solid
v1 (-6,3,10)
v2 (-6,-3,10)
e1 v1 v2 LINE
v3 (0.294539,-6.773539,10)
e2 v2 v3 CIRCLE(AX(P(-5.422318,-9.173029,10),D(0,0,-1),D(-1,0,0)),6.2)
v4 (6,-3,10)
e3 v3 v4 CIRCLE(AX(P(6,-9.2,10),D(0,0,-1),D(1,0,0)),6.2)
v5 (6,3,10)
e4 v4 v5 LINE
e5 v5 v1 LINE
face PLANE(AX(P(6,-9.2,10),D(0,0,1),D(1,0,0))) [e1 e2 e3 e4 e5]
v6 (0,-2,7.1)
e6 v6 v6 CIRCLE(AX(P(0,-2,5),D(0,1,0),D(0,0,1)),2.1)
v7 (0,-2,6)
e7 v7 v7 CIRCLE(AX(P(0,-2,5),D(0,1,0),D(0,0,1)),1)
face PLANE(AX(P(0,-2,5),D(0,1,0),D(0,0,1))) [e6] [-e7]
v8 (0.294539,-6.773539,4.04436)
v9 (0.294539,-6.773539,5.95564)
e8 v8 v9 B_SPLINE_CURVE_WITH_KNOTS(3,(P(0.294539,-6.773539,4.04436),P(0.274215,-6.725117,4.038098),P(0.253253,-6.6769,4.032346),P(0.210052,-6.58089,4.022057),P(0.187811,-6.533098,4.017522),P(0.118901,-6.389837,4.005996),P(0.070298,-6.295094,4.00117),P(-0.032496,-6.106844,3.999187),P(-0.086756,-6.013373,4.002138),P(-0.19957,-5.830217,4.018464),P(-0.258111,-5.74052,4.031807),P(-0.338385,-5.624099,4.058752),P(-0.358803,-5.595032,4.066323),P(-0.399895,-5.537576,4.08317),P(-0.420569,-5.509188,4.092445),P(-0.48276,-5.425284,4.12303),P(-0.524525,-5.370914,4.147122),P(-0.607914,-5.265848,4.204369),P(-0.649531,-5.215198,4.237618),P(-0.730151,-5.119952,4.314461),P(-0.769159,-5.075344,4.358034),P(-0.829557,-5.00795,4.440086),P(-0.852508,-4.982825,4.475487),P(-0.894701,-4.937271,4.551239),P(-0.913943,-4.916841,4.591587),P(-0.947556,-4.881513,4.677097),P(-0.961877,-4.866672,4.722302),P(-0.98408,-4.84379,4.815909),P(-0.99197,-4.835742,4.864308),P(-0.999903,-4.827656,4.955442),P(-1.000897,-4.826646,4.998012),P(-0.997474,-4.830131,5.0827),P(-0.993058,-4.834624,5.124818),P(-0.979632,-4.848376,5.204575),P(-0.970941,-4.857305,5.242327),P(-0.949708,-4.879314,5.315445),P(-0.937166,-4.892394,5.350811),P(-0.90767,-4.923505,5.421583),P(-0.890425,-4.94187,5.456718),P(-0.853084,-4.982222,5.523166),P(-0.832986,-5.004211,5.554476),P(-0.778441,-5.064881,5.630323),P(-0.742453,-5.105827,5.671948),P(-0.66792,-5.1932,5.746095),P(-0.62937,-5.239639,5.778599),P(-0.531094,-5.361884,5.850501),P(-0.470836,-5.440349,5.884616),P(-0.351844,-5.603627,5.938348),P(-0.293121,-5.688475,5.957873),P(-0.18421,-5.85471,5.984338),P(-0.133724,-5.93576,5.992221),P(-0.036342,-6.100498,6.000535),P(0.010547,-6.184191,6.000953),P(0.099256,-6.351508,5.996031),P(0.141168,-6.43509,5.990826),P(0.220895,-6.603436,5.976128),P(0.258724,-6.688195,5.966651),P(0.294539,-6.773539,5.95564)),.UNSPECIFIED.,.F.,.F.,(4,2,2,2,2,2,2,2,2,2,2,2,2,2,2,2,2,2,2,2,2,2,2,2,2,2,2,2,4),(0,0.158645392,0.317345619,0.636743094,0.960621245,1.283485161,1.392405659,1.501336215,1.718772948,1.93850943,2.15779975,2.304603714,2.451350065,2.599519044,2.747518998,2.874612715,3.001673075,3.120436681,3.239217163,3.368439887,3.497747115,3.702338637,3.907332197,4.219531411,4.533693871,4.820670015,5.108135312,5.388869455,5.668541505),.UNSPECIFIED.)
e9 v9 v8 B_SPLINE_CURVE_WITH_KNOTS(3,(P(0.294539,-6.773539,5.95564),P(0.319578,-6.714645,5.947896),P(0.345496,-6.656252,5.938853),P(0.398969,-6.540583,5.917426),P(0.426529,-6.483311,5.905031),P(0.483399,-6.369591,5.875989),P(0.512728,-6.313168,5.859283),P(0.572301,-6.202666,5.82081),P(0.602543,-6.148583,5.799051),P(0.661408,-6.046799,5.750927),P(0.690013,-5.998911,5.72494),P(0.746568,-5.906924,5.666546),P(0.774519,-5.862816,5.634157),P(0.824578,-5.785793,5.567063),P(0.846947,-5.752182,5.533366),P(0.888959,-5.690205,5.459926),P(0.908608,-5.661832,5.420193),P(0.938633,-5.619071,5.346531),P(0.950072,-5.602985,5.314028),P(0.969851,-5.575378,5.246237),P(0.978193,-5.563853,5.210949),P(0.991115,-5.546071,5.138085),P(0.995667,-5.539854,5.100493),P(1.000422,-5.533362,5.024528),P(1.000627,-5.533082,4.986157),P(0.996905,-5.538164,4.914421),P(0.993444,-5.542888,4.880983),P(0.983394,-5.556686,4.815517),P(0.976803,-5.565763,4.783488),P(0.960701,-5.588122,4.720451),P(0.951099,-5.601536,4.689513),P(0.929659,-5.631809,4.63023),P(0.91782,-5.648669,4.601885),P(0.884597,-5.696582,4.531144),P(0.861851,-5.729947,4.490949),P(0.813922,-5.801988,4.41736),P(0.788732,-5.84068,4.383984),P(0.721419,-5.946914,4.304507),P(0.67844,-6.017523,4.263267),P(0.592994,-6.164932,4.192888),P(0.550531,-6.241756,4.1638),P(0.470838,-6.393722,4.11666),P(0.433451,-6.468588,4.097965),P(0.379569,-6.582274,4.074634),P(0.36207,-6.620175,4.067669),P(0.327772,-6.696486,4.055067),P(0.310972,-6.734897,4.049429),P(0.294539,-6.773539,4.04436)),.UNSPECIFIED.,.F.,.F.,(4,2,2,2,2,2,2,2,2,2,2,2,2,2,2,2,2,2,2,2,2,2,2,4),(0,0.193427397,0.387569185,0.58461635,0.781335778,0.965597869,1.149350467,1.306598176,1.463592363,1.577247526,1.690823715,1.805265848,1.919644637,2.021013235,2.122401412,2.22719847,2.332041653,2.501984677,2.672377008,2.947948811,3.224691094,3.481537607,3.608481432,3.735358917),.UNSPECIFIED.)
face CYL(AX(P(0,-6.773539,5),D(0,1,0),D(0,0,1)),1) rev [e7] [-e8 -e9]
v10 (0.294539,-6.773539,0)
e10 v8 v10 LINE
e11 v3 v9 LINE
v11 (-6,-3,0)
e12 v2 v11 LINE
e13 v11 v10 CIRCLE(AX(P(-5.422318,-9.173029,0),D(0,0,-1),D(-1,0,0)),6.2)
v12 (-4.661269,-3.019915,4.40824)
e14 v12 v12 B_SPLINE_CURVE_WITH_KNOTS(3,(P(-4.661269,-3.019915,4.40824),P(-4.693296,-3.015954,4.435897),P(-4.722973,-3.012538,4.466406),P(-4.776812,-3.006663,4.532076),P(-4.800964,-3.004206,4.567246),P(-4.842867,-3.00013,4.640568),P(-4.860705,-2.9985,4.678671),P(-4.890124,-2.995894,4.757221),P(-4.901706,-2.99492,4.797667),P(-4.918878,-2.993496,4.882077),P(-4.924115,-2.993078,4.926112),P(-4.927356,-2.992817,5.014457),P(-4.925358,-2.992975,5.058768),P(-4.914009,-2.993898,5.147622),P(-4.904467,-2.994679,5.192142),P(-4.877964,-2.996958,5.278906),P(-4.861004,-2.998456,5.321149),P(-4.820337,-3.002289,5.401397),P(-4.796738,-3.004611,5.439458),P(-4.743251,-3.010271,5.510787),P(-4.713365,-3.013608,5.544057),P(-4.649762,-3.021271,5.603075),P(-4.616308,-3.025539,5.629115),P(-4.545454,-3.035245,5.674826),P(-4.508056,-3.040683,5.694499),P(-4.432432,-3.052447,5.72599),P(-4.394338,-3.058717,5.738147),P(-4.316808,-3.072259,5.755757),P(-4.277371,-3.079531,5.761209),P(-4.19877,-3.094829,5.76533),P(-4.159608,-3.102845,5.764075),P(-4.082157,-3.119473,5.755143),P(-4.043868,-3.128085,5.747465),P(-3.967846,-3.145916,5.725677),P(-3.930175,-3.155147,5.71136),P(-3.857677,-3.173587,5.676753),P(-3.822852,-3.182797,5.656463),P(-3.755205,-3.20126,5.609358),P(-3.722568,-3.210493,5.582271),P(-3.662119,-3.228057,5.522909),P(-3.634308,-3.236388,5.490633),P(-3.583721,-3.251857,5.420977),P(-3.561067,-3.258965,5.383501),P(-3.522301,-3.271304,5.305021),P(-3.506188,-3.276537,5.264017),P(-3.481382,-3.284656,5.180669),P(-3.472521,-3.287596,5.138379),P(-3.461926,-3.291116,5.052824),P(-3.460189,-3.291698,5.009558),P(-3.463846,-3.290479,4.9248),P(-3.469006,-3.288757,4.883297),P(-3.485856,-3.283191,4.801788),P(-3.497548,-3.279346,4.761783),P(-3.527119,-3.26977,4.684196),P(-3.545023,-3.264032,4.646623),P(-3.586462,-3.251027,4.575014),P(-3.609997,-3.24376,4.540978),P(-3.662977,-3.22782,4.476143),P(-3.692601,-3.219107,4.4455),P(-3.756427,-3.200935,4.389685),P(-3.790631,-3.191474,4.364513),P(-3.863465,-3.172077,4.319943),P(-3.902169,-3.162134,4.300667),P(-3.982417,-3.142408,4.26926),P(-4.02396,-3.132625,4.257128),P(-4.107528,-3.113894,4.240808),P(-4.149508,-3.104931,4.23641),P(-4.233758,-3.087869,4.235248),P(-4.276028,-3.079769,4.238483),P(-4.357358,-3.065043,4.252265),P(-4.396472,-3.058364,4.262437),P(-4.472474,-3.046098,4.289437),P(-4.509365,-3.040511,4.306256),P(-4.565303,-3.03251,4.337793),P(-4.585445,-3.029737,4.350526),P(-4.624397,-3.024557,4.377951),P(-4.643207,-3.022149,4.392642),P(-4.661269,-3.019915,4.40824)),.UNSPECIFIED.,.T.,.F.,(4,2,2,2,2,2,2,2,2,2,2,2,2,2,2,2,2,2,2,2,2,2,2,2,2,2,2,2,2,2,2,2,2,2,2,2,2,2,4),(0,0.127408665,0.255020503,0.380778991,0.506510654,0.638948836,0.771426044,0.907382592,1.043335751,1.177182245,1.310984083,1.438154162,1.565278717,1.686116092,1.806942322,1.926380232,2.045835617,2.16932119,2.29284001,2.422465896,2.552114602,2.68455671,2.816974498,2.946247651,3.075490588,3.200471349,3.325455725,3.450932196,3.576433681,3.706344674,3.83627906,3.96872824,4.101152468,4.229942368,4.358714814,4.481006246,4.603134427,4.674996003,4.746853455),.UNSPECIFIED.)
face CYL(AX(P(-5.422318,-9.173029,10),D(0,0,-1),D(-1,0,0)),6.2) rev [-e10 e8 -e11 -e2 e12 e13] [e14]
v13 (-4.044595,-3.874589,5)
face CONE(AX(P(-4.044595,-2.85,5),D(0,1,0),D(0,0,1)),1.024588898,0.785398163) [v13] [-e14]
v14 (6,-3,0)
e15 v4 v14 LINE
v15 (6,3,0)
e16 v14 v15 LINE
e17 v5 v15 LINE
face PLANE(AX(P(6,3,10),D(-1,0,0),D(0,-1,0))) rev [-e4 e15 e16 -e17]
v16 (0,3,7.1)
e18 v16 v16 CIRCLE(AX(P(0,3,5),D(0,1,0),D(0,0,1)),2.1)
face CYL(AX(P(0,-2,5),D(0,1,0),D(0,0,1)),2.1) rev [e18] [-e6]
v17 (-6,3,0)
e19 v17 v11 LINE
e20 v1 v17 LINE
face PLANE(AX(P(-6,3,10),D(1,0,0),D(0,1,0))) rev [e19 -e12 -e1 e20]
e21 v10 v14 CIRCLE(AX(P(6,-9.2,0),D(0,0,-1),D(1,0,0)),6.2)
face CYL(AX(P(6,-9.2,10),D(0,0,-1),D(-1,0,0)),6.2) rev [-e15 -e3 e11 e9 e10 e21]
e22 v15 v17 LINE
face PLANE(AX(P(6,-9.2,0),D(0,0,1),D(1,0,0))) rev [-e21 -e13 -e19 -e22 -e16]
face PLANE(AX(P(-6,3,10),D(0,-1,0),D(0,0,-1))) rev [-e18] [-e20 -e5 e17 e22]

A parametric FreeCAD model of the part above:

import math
import FreeCAD as App
import Part
import Sketcher
from FreeCAD import Vector

doc = App.newDocument("Part")
body = doc.addObject("PartDesign::Body", "Body")

sketch1 = body.newObject("Sketcher::SketchObject", "Sketch")
sketch1.AttachmentSupport = (doc.getObject("XY_Plane"), [""])
sketch1.MapMode = "FlatFace"
sketch1.addGeometry([
    Part.LineSegment(Vector(6, 3, 0), Vector(-6, 3, 0)),
    Part.LineSegment(Vector(-6, 3, 0), Vector(-6, -3, 0)),
    Part.ArcOfCircle(Part.Circle(Vector(-5, -9, 0), Vector(0, 0, 1), 6), math.radians(23), math.radians(95)),
    Part.ArcOfCircle(Part.Circle(Vector(6, -9, 0), Vector(0, 0, 1), 6), math.radians(90), math.radians(157)),
    Part.LineSegment(Vector(6, -3, 0), Vector(6, 3, 0)),
], False)
sketch1.addConstraint([
    Sketcher.Constraint("Coincident", 0, 2, 1, 1),
    Sketcher.Constraint("Coincident", 1, 2, 2, 2),
    Sketcher.Constraint("Coincident", 2, 1, 3, 2),
    Sketcher.Constraint("Coincident", 3, 1, 4, 1),
    Sketcher.Constraint("Coincident", 4, 2, 0, 1),
    Sketcher.Constraint("Horizontal", 0),
    Sketcher.Constraint("Vertical", 1),
    Sketcher.Constraint("Vertical", 4),
    Sketcher.Constraint("Equal", 2, 3),
    Sketcher.Constraint("Symmetric", 0, 2, 3, 1, -1, 1),
    Sketcher.Constraint("Horizontal", 1, 2, 3, 1),
    Sketcher.Constraint("Radius", 2, 6.2),
    Sketcher.Constraint("DistanceX", 0, 2, 0, 1, 12.0),
    Sketcher.Constraint("DistanceY", 1, 2, 1, 1, 6.0),
    Sketcher.Constraint("DistanceX", -1, 1, 3, 3, 6.0),
    Sketcher.Constraint("DistanceX", 2, 3, -1, 1, 5.422318),
])
pad1 = body.newObject("PartDesign::Pad", "Pad")
pad1.Profile = sketch1
pad1.Length = 10

sketch2 = body.newObject("Sketcher::SketchObject", "Sketch001")
sketch2.AttachmentSupport = (doc.getObject("XZ_Plane"), [""])
sketch2.MapMode = "FlatFace"
sketch2.AttachmentOffset = App.Placement(Vector(0, 0, -3), App.Rotation())
sketch2.addGeometry(Part.Circle(Vector(0, 5, 0), Vector(0, 0, 1), 2.1), False)
sketch2.addConstraint([
    Sketcher.Constraint("PointOnObject", 0, 3, -2),
    Sketcher.Constraint("Diameter", 0, 4.2),
    Sketcher.Constraint("DistanceY", -1, 1, 0, 3, 5.0),
])
pocket1 = body.newObject("PartDesign::Pocket", "Pocket")
pocket1.Profile = sketch2
pocket1.Length = 5
pocket1.Reversed = True

sketch3 = body.newObject("Sketcher::SketchObject", "Sketch002")
sketch3.AttachmentSupport = (doc.getObject("XZ_Plane"), [""])
sketch3.MapMode = "FlatFace"
sketch3.AttachmentOffset = App.Placement(Vector(0, 0, 2), App.Rotation())
sketch3.addGeometry(Part.Circle(Vector(0, 5, 0), Vector(0, 0, 1), 1), False)
sketch3.addConstraint([
    Sketcher.Constraint("PointOnObject", 0, 3, -2),
    Sketcher.Constraint("Diameter", 0, 2.0),
    Sketcher.Constraint("DistanceY", -1, 1, 0, 3, 5.0),
])
pocket2 = body.newObject("PartDesign::Pocket", "Pocket001")
pocket2.Profile = sketch3
pocket2.Type = "ThroughAll"
pocket2.Reversed = True

sketch4 = body.newObject("Sketcher::SketchObject", "Sketch003")
sketch4.AttachmentSupport = (doc.getObject("YZ_Plane"), [""])
sketch4.MapMode = "FlatFace"
sketch4.AttachmentOffset = App.Placement(Vector(0, 0, -4.044595), App.Rotation())
sketch4.addGeometry([
    Part.LineSegment(Vector(-2.9, 5, 0), Vector(-2.9, 6, 0)),
    Part.LineSegment(Vector(-2.9, 6, 0), Vector(-3.9, 5, 0)),
    Part.LineSegment(Vector(-3.9, 5, 0), Vector(-2.9, 5, 0)),
], False)
sketch4.addGeometry(Part.LineSegment(Vector(-2.9, 5, 0), Vector(-3.9, 5, 0)), True)
sketch4.addConstraint([
    Sketcher.Constraint("Coincident", 0, 2, 1, 1),
    Sketcher.Constraint("Coincident", 1, 2, 2, 1),
    Sketcher.Constraint("Coincident", 2, 2, 0, 1),
    Sketcher.Constraint("Vertical", 0),
    Sketcher.Constraint("Horizontal", 2),
    Sketcher.Constraint("Horizontal", 3),
    Sketcher.Constraint("Coincident", 3, 1, 2, 2),
    Sketcher.Constraint("Equal", 2, 3),
    Sketcher.Constraint("Equal", 3, 0),
    Sketcher.Constraint("DistanceY", -1, 1, 1, 2, 5.0),
    Sketcher.Constraint("DistanceX", 0, 2, -1, 1, 2.85),
    Sketcher.Constraint("DistanceX", 2, 1, 2, 2, 1.024589),
])
revolution = body.newObject("PartDesign::Revolution", "Revolution")
revolution.Profile = sketch4
revolution.ReferenceAxis = (sketch4, ["Axis0"])
revolution.Angle = 360

doc.recompute()
